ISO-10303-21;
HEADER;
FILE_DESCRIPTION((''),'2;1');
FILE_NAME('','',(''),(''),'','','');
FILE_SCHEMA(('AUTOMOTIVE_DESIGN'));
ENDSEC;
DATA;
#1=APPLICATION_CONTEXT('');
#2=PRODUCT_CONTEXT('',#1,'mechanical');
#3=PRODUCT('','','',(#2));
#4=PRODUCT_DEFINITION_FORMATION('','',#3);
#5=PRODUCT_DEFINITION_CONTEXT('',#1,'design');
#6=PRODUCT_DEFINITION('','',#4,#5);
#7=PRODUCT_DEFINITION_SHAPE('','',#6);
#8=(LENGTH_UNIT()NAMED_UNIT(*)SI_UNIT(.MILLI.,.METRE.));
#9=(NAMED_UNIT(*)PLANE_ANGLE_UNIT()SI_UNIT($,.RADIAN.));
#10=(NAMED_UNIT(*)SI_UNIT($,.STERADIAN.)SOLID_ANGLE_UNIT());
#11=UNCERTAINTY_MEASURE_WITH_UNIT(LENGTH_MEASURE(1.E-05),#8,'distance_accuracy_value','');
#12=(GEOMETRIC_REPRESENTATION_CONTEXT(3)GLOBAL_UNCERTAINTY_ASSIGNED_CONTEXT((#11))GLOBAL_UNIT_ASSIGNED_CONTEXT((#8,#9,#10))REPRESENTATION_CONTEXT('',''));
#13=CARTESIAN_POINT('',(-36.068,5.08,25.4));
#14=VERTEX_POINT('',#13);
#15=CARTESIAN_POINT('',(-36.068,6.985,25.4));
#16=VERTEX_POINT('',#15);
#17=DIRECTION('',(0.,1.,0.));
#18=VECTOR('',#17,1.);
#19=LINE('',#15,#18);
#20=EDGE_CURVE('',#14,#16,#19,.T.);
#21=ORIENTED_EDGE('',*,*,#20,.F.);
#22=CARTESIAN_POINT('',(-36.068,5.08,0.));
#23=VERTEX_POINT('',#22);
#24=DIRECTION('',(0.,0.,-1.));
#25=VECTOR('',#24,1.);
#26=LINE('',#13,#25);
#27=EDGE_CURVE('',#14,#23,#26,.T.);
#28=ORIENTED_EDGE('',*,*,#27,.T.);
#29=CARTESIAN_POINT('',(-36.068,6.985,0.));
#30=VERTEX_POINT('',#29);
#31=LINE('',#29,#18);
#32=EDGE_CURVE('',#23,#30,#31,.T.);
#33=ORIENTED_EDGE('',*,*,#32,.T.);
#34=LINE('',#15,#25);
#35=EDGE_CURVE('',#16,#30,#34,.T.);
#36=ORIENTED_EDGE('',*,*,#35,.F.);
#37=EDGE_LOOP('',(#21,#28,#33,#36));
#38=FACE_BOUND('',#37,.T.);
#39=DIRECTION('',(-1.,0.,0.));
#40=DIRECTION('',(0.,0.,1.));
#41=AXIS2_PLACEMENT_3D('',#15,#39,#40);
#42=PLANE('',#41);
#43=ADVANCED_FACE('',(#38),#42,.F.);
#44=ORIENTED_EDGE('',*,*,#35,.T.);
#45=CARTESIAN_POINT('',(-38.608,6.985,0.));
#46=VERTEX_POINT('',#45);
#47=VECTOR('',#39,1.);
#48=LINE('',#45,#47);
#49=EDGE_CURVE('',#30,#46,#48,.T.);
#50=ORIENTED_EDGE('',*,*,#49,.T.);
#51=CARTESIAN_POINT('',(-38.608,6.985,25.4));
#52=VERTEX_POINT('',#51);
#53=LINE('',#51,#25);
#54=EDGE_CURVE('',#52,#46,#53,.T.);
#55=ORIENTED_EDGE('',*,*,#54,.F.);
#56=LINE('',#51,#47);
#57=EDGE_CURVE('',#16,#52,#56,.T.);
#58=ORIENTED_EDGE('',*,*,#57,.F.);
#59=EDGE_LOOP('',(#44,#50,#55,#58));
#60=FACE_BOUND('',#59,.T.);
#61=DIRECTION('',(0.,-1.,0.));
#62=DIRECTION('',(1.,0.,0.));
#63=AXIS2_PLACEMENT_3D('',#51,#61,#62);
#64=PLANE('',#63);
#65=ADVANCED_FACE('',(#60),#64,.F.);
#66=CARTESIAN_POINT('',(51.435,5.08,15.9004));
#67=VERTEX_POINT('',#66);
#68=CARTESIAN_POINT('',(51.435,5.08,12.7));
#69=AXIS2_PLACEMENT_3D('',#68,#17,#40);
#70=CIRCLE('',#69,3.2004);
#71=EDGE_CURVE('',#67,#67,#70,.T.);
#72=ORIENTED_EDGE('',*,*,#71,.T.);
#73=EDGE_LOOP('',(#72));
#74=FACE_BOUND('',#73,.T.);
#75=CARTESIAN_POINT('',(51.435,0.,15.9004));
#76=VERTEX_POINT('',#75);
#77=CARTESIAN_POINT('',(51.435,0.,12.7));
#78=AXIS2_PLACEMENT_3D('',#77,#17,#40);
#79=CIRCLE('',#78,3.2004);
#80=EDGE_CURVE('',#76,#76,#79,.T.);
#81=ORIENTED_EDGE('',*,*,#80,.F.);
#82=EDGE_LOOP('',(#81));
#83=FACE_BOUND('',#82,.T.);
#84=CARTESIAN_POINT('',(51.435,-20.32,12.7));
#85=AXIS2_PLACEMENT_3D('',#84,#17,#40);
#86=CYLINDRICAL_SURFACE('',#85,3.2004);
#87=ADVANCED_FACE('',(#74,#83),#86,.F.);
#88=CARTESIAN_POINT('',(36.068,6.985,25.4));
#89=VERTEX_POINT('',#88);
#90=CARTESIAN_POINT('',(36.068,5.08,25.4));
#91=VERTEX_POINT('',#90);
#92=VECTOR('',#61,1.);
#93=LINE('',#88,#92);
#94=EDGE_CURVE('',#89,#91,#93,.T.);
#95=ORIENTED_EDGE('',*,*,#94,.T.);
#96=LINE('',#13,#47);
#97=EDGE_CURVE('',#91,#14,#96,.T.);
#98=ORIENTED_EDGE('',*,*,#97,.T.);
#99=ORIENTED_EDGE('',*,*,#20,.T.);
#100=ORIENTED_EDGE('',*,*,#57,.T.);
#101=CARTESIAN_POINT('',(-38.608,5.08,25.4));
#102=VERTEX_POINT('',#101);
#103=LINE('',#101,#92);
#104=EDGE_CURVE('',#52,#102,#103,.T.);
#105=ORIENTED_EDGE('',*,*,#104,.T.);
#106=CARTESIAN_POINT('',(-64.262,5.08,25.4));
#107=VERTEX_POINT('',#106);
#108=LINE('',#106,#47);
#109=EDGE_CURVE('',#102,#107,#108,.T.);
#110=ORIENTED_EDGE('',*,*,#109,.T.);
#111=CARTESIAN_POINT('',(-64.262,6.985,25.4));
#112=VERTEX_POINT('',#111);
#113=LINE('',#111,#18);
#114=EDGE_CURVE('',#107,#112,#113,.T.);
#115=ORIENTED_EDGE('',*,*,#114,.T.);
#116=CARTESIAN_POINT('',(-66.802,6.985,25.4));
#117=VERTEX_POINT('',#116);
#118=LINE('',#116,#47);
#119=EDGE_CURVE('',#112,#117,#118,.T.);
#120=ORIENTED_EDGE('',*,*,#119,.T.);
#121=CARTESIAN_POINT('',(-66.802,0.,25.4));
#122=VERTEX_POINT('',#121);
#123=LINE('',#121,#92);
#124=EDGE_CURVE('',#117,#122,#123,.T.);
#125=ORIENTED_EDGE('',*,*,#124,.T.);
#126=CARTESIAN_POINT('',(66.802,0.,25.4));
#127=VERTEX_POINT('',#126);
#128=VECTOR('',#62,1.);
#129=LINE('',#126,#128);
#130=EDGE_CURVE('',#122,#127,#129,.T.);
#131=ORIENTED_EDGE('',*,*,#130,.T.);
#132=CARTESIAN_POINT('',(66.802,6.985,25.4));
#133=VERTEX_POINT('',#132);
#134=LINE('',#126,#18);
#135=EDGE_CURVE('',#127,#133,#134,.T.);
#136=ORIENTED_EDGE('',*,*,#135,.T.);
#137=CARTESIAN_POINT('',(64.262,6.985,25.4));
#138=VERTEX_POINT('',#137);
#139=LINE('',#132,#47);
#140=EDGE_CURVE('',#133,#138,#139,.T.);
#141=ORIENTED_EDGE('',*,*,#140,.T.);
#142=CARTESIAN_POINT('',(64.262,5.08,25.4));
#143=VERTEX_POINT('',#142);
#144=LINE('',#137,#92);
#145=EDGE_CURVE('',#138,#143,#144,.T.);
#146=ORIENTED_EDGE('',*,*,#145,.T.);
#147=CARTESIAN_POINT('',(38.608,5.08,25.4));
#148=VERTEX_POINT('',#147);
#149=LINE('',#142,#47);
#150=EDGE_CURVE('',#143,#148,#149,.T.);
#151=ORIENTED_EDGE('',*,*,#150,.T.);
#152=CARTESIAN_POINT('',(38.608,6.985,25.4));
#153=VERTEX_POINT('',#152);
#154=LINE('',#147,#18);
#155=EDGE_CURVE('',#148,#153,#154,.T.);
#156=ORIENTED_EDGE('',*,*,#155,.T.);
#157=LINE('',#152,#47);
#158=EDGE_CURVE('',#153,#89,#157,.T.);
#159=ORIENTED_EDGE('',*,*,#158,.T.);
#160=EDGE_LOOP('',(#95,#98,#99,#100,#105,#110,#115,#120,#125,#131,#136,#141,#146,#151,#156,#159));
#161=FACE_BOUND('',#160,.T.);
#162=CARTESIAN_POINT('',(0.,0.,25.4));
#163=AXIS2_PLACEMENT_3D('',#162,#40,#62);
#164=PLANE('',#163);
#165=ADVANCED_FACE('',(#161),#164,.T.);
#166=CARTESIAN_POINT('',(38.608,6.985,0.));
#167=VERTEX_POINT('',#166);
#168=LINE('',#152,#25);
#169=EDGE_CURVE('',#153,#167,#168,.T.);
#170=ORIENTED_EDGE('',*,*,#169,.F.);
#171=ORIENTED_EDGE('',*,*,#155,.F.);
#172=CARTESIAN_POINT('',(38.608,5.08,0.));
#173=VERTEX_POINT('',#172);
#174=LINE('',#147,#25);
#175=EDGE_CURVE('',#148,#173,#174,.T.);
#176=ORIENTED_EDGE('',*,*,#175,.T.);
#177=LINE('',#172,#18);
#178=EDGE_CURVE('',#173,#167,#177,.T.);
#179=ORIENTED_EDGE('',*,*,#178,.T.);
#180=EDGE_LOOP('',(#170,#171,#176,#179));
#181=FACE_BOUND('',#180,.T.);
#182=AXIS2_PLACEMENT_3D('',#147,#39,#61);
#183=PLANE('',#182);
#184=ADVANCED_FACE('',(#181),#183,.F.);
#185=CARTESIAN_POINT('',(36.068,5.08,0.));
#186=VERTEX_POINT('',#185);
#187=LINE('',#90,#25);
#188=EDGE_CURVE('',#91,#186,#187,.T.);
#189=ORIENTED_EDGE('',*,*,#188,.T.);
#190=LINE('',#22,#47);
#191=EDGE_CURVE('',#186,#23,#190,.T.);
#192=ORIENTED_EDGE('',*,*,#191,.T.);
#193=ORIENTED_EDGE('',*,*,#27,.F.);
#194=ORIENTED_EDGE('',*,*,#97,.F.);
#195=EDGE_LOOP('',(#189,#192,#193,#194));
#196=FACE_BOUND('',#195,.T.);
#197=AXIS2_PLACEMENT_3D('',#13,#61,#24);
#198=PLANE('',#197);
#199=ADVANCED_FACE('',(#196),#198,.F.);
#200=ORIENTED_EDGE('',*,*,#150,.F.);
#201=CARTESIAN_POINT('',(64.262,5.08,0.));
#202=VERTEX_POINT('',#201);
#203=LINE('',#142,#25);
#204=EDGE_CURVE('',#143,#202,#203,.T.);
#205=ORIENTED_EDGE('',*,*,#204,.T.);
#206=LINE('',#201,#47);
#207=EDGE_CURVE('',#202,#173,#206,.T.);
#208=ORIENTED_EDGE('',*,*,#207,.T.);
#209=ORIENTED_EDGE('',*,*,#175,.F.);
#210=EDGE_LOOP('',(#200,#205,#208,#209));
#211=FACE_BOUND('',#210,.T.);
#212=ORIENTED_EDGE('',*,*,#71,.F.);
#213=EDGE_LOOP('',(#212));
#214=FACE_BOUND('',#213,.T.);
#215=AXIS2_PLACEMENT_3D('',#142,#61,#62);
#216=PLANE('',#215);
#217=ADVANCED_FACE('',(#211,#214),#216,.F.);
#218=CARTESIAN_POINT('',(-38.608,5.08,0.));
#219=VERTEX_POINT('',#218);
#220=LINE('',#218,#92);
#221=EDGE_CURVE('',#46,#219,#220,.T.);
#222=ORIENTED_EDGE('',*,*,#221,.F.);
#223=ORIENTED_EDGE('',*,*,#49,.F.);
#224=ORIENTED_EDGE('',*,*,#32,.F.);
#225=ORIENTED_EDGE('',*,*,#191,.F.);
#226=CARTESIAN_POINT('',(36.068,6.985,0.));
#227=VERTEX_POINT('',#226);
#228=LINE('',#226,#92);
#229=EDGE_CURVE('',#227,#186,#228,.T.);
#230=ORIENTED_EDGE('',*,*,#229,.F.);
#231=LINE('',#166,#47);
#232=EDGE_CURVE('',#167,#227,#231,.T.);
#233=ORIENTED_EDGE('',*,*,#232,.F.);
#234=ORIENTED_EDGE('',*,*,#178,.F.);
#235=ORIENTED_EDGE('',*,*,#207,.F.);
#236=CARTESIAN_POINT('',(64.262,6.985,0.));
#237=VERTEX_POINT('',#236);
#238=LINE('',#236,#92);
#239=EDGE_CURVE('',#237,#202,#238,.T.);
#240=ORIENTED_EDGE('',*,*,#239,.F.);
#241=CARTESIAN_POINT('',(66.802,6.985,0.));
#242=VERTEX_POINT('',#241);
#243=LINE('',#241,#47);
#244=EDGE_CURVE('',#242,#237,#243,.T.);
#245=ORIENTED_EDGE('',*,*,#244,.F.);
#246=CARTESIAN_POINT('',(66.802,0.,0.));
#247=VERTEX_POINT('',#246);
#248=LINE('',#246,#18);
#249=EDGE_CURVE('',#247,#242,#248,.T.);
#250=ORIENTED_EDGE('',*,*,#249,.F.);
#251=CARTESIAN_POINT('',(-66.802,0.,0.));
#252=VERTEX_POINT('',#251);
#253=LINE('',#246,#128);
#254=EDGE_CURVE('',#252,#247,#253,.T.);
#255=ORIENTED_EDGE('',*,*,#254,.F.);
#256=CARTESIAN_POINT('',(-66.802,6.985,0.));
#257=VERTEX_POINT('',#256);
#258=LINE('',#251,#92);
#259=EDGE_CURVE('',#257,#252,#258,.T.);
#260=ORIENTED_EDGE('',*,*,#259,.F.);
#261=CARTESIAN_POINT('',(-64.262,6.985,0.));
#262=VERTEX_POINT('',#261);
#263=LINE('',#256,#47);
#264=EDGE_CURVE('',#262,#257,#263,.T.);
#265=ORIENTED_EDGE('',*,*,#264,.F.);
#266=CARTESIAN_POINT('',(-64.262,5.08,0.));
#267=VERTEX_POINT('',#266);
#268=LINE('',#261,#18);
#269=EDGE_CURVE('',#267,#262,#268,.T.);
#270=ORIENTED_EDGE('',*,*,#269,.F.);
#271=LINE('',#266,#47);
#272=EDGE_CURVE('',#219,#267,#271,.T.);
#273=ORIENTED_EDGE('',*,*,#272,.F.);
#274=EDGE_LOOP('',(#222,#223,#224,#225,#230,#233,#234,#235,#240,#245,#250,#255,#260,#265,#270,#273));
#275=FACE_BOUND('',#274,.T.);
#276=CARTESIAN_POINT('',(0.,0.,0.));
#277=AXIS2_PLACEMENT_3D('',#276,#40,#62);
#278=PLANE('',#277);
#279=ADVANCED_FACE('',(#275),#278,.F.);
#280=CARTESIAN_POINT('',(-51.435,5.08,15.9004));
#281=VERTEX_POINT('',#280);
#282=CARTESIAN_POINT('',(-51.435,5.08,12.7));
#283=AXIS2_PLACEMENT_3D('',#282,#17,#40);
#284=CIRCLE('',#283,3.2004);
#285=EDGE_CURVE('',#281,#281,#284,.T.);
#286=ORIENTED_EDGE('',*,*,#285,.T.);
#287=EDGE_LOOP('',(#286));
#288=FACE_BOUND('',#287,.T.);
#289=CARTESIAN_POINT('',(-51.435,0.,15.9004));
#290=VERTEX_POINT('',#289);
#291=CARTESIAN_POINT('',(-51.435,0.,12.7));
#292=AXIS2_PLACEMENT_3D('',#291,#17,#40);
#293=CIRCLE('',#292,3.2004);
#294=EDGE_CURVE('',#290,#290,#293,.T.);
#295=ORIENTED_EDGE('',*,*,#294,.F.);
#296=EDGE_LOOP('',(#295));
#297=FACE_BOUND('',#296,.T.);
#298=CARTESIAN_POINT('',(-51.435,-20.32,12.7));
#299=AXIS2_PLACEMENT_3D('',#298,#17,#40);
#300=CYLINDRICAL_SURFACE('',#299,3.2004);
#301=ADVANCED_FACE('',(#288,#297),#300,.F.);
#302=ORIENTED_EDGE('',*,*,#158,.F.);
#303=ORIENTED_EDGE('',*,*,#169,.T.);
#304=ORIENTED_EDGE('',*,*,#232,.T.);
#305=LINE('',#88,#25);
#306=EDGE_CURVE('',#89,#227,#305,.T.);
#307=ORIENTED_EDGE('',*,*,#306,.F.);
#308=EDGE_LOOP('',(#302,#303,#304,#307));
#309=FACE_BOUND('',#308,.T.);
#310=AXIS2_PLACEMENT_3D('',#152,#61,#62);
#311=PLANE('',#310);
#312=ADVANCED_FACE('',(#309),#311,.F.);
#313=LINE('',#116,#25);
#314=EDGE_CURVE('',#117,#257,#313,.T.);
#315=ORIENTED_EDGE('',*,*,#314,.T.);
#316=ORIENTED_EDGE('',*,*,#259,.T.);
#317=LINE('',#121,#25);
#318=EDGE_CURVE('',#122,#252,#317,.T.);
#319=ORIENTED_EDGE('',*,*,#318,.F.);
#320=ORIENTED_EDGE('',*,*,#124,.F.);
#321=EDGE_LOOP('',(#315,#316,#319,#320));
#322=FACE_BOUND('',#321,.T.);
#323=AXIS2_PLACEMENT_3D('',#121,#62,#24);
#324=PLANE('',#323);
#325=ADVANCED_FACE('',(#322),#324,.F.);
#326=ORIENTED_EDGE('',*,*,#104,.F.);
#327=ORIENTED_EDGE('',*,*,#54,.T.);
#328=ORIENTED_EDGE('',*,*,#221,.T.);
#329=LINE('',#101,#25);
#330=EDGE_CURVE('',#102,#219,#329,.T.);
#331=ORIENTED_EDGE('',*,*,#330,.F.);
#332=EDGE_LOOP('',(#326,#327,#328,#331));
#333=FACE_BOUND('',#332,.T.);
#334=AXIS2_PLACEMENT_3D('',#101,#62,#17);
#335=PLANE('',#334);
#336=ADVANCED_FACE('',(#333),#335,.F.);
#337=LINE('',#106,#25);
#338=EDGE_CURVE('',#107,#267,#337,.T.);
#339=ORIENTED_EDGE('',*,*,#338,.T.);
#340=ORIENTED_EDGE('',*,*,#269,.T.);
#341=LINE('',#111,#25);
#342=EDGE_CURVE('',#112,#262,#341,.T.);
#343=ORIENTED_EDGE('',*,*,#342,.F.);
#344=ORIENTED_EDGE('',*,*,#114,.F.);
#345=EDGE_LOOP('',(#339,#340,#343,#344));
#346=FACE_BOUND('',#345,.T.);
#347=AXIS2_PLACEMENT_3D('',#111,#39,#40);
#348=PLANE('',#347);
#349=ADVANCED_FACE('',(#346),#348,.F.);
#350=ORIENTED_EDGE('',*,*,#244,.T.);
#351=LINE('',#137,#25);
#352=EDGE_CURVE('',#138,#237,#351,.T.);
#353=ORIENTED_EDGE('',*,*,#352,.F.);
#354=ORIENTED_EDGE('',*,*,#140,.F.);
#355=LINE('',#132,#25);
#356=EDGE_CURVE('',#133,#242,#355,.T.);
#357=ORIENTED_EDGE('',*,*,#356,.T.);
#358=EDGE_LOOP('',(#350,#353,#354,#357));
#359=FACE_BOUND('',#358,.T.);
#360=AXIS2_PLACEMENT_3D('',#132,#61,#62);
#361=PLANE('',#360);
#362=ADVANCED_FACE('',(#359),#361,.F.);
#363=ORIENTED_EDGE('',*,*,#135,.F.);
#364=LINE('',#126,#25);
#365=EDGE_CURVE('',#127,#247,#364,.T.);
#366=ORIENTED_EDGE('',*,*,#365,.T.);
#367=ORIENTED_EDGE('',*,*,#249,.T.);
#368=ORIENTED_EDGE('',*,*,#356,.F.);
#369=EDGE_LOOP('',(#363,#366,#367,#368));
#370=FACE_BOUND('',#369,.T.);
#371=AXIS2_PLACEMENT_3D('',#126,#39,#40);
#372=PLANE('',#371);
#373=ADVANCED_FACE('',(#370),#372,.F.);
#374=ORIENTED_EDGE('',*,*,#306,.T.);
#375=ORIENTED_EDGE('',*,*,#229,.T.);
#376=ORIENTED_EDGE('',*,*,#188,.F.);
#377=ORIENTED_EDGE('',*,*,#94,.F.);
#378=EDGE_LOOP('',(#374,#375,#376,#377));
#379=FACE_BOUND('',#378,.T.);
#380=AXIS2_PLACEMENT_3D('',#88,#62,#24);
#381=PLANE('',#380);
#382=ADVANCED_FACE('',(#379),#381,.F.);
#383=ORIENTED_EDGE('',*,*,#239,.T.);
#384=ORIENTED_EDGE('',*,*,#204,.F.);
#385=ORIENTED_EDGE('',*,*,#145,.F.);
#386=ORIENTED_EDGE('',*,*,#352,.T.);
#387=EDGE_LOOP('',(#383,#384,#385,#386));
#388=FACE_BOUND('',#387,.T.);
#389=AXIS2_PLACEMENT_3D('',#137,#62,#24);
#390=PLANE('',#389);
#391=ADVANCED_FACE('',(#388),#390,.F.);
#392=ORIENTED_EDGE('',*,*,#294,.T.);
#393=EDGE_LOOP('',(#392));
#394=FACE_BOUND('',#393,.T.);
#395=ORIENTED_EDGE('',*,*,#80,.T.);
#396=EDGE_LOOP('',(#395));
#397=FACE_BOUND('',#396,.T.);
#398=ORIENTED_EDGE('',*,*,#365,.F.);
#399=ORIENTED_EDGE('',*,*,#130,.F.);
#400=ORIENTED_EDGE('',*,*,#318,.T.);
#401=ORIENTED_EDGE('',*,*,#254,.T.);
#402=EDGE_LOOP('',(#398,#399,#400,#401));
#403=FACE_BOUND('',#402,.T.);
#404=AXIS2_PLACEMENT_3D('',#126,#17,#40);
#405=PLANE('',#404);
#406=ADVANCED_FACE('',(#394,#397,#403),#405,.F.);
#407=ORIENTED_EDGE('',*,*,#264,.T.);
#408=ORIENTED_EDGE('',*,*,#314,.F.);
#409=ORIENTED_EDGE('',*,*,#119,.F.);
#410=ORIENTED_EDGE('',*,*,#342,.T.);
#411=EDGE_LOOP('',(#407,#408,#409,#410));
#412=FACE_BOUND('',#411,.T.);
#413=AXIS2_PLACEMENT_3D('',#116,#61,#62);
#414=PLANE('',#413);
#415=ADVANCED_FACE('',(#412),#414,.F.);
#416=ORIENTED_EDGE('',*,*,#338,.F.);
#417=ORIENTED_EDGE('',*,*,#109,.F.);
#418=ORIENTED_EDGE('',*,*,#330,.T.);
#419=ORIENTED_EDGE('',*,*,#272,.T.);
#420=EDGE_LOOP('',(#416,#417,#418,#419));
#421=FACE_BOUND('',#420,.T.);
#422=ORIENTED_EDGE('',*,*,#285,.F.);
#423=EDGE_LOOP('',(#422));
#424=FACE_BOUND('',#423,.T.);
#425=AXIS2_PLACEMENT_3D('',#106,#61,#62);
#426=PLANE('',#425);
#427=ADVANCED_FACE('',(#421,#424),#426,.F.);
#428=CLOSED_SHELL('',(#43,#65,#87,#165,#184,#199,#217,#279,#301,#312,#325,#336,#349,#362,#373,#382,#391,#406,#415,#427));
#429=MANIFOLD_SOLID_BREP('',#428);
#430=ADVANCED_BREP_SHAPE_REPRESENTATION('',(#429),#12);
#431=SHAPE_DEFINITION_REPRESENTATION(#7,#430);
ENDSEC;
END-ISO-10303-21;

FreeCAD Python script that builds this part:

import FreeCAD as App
import Part
import Sketcher

V = App.Vector
Q = App.Units.Quantity

doc = App.newDocument("Part")
body = doc.addObject("PartDesign::Body", "Body")

sketch1 = body.newObject("Sketcher::SketchObject", "Sketch")
sketch1.AttachmentSupport = (doc.getObject("XY_Plane"), [""])
sketch1.MapMode = "FlatFace"
sketch1.addGeometry(Part.LineSegment(V(-66.8, 0, 0), V(66.8, 0, 0)), False)
sketch1.addGeometry(Part.LineSegment(V(66.8, 0, 0), V(66.8, 7, 0)), False)
sketch1.addGeometry(Part.LineSegment(V(66.8, 7, 0), V(64.3, 7, 0)), False)
sketch1.addGeometry(Part.LineSegment(V(64.3, 7, 0), V(64.3, 5.1, 0)), False)
sketch1.addGeometry(Part.LineSegment(V(64.3, 5.1, 0), V(38.6, 5.1, 0)), False)
sketch1.addGeometry(Part.LineSegment(V(38.6, 5.1, 0), V(38.6, 7, 0)), False)
sketch1.addGeometry(Part.LineSegment(V(38.6, 7, 0), V(36.1, 7, 0)), False)
sketch1.addGeometry(Part.LineSegment(V(36.1, 7, 0), V(36.1, 5.1, 0)), False)
sketch1.addGeometry(Part.LineSegment(V(36.1, 5.1, 0), V(-36.1, 5.1, 0)), False)
sketch1.addGeometry(Part.LineSegment(V(-36.1, 5.1, 0), V(-36.1, 7, 0)), False)
sketch1.addGeometry(Part.LineSegment(V(-36.1, 7, 0), V(-38.6, 7, 0)), False)
sketch1.addGeometry(Part.LineSegment(V(-38.6, 7, 0), V(-38.6, 5.1, 0)), False)
sketch1.addGeometry(Part.LineSegment(V(-38.6, 5.1, 0), V(-64.3, 5.1, 0)), False)
sketch1.addGeometry(Part.LineSegment(V(-64.3, 5.1, 0), V(-64.3, 7, 0)), False)
sketch1.addGeometry(Part.LineSegment(V(-64.3, 7, 0), V(-66.8, 7, 0)), False)
sketch1.addGeometry(Part.LineSegment(V(-66.8, 7, 0), V(-66.8, 0, 0)), False)
sketch1.addConstraint(Sketcher.Constraint("Coincident", 0, 2, 1, 1))
sketch1.addConstraint(Sketcher.Constraint("Coincident", 1, 2, 2, 1))
sketch1.addConstraint(Sketcher.Constraint("Coincident", 2, 2, 3, 1))
sketch1.addConstraint(Sketcher.Constraint("Coincident", 3, 2, 4, 1))
sketch1.addConstraint(Sketcher.Constraint("Coincident", 4, 2, 5, 1))
sketch1.addConstraint(Sketcher.Constraint("Coincident", 5, 2, 6, 1))
sketch1.addConstraint(Sketcher.Constraint("Coincident", 6, 2, 7, 1))
sketch1.addConstraint(Sketcher.Constraint("Coincident", 7, 2, 8, 1))
sketch1.addConstraint(Sketcher.Constraint("Coincident", 8, 2, 9, 1))
sketch1.addConstraint(Sketcher.Constraint("Coincident", 9, 2, 10, 1))
sketch1.addConstraint(Sketcher.Constraint("Coincident", 10, 2, 11, 1))
sketch1.addConstraint(Sketcher.Constraint("Coincident", 11, 2, 12, 1))
sketch1.addConstraint(Sketcher.Constraint("Coincident", 12, 2, 13, 1))
sketch1.addConstraint(Sketcher.Constraint("Coincident", 13, 2, 14, 1))
sketch1.addConstraint(Sketcher.Constraint("Coincident", 14, 2, 15, 1))
sketch1.addConstraint(Sketcher.Constraint("Coincident", 15, 2, 0, 1))
sketch1.addConstraint(Sketcher.Constraint("Horizontal", 0))
sketch1.addConstraint(Sketcher.Constraint("Vertical", 1))
sketch1.addConstraint(Sketcher.Constraint("Horizontal", 2))
sketch1.addConstraint(Sketcher.Constraint("Vertical", 3))
sketch1.addConstraint(Sketcher.Constraint("Horizontal", 4))
sketch1.addConstraint(Sketcher.Constraint("Vertical", 5))
sketch1.addConstraint(Sketcher.Constraint("Horizontal", 6))
sketch1.addConstraint(Sketcher.Constraint("Vertical", 7))
sketch1.addConstraint(Sketcher.Constraint("Horizontal", 8))
sketch1.addConstraint(Sketcher.Constraint("Vertical", 9))
sketch1.addConstraint(Sketcher.Constraint("Horizontal", 10))
sketch1.addConstraint(Sketcher.Constraint("Vertical", 11))
sketch1.addConstraint(Sketcher.Constraint("Horizontal", 12))
sketch1.addConstraint(Sketcher.Constraint("Vertical", 13))
sketch1.addConstraint(Sketcher.Constraint("Horizontal", 14))
sketch1.addConstraint(Sketcher.Constraint("Vertical", 15))
sketch1.addConstraint(Sketcher.Constraint("Symmetric", 0, 2, 15, 2, -1, 1))
sketch1.addConstraint(Sketcher.Constraint("Symmetric", 6, 2, 9, 2, -2))
sketch1.addConstraint(Sketcher.Constraint("Symmetric", 4, 2, 11, 2, -2))
sketch1.addConstraint(Sketcher.Constraint("Symmetric", 2, 2, 13, 2, -2))
sketch1.addConstraint(Sketcher.Constraint("Horizontal", 2, 2, 5, 2))
sketch1.addConstraint(Sketcher.Constraint("Horizontal", 4, 2, 7, 2))
sketch1.addConstraint(Sketcher.Constraint("Equal", 2, 6))
sketch1.addConstraint(Sketcher.Constraint("DistanceX", 2, 2, 2, 1, Q("0.1 in")))
sketch1.addConstraint(Sketcher.Constraint("DistanceX", 0, 1, 0, 2, Q("5.26 in")))
sketch1.addConstraint(Sketcher.Constraint("DistanceX", 4, 2, 4, 1, Q("1.01 in")))
sketch1.addConstraint(Sketcher.Constraint("DistanceY", -1, 1, 3, 2, Q("0.2 in")))
sketch1.addConstraint(Sketcher.Constraint("DistanceY", 1, 1, 1, 2, Q("0.275 in")))
pad1 = body.newObject("PartDesign::Pad", "Pad")
pad1.Profile = sketch1
pad1.Length = Q("1 in")

sketch2 = body.newObject("Sketcher::SketchObject", "Sketch001")
sketch2.AttachmentSupport = (doc.getObject("XZ_Plane"), [""])
sketch2.MapMode = "FlatFace"
sketch2.AttachmentOffset = App.Placement(V(0, 0, -0.2 * 25.4), App.Rotation())
sketch2.addGeometry(Part.Circle(V(-51.4, 12.7, 0), V(0, 0, 1), 3.2), False)
sketch2.addGeometry(Part.Circle(V(51.4, 12.7, 0), V(0, 0, 1), 3.2), False)
sketch2.addConstraint(Sketcher.Constraint("Equal", 0, 1))
sketch2.addConstraint(Sketcher.Constraint("Symmetric", 0, 3, 1, 3, -2))
sketch2.addConstraint(Sketcher.Constraint("Diameter", 0, Q("0.252 in")))
sketch2.addConstraint(Sketcher.Constraint("DistanceY", -1, 1, 0, 3, Q("0.5 in")))
sketch2.addConstraint(Sketcher.Constraint("DistanceX", 0, 3, 1, 3, Q("4.05 in")))
pocket1 = body.newObject("PartDesign::Pocket", "Pocket")
pocket1.Profile = sketch2
pocket1.Length = Q("1 in")
pocket1.Reversed = True

doc.recompute()
